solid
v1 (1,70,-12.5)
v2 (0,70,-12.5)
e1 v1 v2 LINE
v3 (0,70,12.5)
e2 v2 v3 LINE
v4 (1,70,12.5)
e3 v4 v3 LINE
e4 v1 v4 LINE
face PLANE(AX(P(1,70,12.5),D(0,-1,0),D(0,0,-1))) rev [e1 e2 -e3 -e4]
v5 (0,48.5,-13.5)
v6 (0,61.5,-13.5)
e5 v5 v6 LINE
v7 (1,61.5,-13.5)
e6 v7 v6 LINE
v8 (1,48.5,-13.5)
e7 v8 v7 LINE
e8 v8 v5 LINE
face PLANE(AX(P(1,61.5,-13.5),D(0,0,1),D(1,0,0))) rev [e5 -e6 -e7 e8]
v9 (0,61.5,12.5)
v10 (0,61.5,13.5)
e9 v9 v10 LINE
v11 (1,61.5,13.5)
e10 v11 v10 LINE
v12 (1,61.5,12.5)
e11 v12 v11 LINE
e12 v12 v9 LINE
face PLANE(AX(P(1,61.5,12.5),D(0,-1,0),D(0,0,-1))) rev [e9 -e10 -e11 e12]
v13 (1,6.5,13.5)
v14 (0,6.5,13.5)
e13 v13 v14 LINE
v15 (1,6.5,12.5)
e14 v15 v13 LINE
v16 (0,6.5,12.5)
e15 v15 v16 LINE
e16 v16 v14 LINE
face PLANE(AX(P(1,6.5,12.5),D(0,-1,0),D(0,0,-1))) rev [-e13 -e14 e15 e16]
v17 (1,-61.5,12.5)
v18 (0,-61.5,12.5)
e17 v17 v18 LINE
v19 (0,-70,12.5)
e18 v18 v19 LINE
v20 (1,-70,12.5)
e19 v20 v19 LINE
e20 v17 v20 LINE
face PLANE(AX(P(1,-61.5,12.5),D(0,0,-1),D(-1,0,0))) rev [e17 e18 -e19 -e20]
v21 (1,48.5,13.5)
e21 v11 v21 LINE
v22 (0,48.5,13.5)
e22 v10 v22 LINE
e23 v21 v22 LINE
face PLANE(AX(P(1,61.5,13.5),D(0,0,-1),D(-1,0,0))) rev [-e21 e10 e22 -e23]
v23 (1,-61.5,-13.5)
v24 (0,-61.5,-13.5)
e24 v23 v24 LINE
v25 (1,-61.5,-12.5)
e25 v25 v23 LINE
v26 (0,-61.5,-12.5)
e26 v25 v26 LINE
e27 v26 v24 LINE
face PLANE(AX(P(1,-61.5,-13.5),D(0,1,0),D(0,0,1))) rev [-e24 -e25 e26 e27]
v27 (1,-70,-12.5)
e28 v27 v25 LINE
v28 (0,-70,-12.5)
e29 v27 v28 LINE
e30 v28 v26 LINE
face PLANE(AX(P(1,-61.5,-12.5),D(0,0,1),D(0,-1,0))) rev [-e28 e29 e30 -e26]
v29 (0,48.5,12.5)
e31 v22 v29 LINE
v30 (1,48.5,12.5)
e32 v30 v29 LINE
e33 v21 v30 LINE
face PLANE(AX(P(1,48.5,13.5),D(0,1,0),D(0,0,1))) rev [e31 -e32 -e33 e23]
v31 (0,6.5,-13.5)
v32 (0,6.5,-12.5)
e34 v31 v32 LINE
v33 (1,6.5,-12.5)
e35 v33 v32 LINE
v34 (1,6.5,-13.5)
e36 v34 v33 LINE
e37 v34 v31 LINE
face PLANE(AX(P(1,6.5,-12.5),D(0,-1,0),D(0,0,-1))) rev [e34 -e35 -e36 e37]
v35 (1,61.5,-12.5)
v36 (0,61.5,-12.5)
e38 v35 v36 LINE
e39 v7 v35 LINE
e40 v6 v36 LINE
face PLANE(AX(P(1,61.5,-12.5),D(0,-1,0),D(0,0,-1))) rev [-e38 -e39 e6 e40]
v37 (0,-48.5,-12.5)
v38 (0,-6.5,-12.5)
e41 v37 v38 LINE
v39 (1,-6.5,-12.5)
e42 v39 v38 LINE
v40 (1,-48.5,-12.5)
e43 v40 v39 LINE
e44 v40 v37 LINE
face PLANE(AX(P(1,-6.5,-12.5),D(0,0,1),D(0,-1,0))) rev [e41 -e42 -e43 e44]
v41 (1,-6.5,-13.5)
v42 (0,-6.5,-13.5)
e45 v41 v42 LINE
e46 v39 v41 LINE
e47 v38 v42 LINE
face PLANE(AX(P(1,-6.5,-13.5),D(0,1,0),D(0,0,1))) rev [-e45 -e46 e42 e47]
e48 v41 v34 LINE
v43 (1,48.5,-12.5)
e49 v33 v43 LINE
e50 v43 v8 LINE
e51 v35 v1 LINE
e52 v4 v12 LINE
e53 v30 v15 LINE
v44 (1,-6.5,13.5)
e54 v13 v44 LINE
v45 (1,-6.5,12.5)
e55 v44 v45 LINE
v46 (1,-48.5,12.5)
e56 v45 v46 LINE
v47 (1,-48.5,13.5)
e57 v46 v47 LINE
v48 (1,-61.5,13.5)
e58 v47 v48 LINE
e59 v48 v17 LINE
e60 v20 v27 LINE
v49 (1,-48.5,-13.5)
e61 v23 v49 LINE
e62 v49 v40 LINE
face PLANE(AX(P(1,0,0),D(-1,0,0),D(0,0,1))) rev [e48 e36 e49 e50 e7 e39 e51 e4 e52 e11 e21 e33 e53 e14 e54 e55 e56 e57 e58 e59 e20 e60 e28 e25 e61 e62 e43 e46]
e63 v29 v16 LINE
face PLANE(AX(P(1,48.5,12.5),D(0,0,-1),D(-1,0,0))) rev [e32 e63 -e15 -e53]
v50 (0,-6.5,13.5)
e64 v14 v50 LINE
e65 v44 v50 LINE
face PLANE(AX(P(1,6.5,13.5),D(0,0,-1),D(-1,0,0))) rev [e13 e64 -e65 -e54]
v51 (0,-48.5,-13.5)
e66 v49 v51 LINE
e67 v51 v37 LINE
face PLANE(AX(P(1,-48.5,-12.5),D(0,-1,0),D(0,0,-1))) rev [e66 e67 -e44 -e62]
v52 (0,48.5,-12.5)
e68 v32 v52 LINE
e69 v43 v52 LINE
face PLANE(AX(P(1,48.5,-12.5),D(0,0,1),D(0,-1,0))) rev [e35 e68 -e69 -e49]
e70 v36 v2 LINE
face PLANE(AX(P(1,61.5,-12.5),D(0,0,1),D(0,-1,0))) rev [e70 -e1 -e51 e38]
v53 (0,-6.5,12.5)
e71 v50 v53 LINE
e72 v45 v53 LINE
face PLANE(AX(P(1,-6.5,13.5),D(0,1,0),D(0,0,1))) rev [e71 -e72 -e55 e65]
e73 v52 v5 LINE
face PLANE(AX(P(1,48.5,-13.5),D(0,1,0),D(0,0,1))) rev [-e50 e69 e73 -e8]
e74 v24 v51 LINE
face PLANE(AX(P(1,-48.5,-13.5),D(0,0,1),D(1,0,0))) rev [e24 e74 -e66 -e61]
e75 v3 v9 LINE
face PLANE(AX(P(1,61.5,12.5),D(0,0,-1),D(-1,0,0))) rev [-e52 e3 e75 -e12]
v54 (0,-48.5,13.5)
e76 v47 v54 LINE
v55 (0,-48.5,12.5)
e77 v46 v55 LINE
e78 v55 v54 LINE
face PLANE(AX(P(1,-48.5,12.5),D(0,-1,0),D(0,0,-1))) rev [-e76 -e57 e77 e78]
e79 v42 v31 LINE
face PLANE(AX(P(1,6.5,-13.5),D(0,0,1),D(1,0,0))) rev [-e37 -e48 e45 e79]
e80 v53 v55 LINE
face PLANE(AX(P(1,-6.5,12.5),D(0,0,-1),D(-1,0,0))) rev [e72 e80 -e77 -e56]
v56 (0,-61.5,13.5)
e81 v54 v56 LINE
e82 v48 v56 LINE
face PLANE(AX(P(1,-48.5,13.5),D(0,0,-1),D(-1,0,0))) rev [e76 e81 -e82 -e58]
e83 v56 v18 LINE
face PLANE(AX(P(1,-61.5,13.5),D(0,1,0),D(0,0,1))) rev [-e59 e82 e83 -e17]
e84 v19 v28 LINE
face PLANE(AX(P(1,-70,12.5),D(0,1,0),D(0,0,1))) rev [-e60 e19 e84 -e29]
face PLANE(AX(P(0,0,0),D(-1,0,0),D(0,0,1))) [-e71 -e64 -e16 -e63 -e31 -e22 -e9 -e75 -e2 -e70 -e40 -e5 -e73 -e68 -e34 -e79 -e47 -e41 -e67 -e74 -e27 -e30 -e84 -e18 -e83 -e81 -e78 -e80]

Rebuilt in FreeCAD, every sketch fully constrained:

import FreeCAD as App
import Part
import Sketcher

V = App.Vector

doc = App.newDocument("Part")
body = doc.addObject("PartDesign::Body", "Body")

sketch1 = body.newObject("Sketcher::SketchObject", "Sketch")
sketch1.AttachmentSupport = (doc.getObject("YZ_Plane"), [""])
sketch1.MapMode = "FlatFace"
sketch1.addGeometry(Part.LineSegment(V(61.5, 12.5, 0), V(61.5, 13.5, 0)), False)
sketch1.addGeometry(Part.LineSegment(V(61.5, 13.5, 0), V(48.5, 13.5, 0)), False)
sketch1.addGeometry(Part.LineSegment(V(48.5, 13.5, 0), V(48.5, 12.5, 0)), False)
sketch1.addGeometry(Part.LineSegment(V(48.5, 12.5, 0), V(6.5, 12.5, 0)), False)
sketch1.addGeometry(Part.LineSegment(V(6.5, 12.5, 0), V(6.5, 13.5, 0)), False)
sketch1.addGeometry(Part.LineSegment(V(6.5, 13.5, 0), V(-6.5, 13.5, 0)), False)
sketch1.addGeometry(Part.LineSegment(V(-6.5, 13.5, 0), V(-6.5, 12.5, 0)), False)
sketch1.addGeometry(Part.LineSegment(V(-6.5, 12.5, 0), V(-48.5, 12.5, 0)), False)
sketch1.addGeometry(Part.LineSegment(V(-48.5, 12.5, 0), V(-48.5, 13.5, 0)), False)
sketch1.addGeometry(Part.LineSegment(V(-48.5, 13.5, 0), V(-61.5, 13.5, 0)), False)
sketch1.addGeometry(Part.LineSegment(V(-61.5, 13.5, 0), V(-61.5, 12.5, 0)), False)
sketch1.addGeometry(Part.LineSegment(V(-61.5, 12.5, 0), V(-70, 12.5, 0)), False)
sketch1.addGeometry(Part.LineSegment(V(-70, 12.5, 0), V(-70, -12.5, 0)), False)
sketch1.addGeometry(Part.LineSegment(V(-70, -12.5, 0), V(-61.5, -12.5, 0)), False)
sketch1.addGeometry(Part.LineSegment(V(-61.5, -12.5, 0), V(-61.5, -13.5, 0)), False)
sketch1.addGeometry(Part.LineSegment(V(-61.5, -13.5, 0), V(-48.5, -13.5, 0)), False)
sketch1.addGeometry(Part.LineSegment(V(-48.5, -13.5, 0), V(-48.5, -12.5, 0)), False)
sketch1.addGeometry(Part.LineSegment(V(-48.5, -12.5, 0), V(-6.5, -12.5, 0)), False)
sketch1.addGeometry(Part.LineSegment(V(-6.5, -12.5, 0), V(-6.5, -13.5, 0)), False)
sketch1.addGeometry(Part.LineSegment(V(-6.5, -13.5, 0), V(6.5, -13.5, 0)), False)
sketch1.addGeometry(Part.LineSegment(V(6.5, -13.5, 0), V(6.5, -12.5, 0)), False)
sketch1.addGeometry(Part.LineSegment(V(6.5, -12.5, 0), V(48.5, -12.5, 0)), False)
sketch1.addGeometry(Part.LineSegment(V(48.5, -12.5, 0), V(48.5, -13.5, 0)), False)
sketch1.addGeometry(Part.LineSegment(V(48.5, -13.5, 0), V(61.5, -13.5, 0)), False)
sketch1.addGeometry(Part.LineSegment(V(61.5, -13.5, 0), V(61.5, -12.5, 0)), False)
sketch1.addGeometry(Part.LineSegment(V(61.5, -12.5, 0), V(70, -12.5, 0)), False)
sketch1.addGeometry(Part.LineSegment(V(70, -12.5, 0), V(70, 12.5, 0)), False)
sketch1.addGeometry(Part.LineSegment(V(70, 12.5, 0), V(61.5, 12.5, 0)), False)
sketch1.addConstraint(Sketcher.Constraint("Coincident", 0, 2, 1, 1))
sketch1.addConstraint(Sketcher.Constraint("Coincident", 1, 2, 2, 1))
sketch1.addConstraint(Sketcher.Constraint("Coincident", 2, 2, 3, 1))
sketch1.addConstraint(Sketcher.Constraint("Coincident", 3, 2, 4, 1))
sketch1.addConstraint(Sketcher.Constraint("Coincident", 4, 2, 5, 1))
sketch1.addConstraint(Sketcher.Constraint("Coincident", 5, 2, 6, 1))
sketch1.addConstraint(Sketcher.Constraint("Coincident", 6, 2, 7, 1))
sketch1.addConstraint(Sketcher.Constraint("Coincident", 7, 2, 8, 1))
sketch1.addConstraint(Sketcher.Constraint("Coincident", 8, 2, 9, 1))
sketch1.addConstraint(Sketcher.Constraint("Coincident", 9, 2, 10, 1))
sketch1.addConstraint(Sketcher.Constraint("Coincident", 10, 2, 11, 1))
sketch1.addConstraint(Sketcher.Constraint("Coincident", 11, 2, 12, 1))
sketch1.addConstraint(Sketcher.Constraint("Coincident", 12, 2, 13, 1))
sketch1.addConstraint(Sketcher.Constraint("Coincident", 13, 2, 14, 1))
sketch1.addConstraint(Sketcher.Constraint("Coincident", 14, 2, 15, 1))
sketch1.addConstraint(Sketcher.Constraint("Coincident", 15, 2, 16, 1))
sketch1.addConstraint(Sketcher.Constraint("Coincident", 16, 2, 17, 1))
sketch1.addConstraint(Sketcher.Constraint("Coincident", 17, 2, 18, 1))
sketch1.addConstraint(Sketcher.Constraint("Coincident", 18, 2, 19, 1))
sketch1.addConstraint(Sketcher.Constraint("Coincident", 19, 2, 20, 1))
sketch1.addConstraint(Sketcher.Constraint("Coincident", 20, 2, 21, 1))
sketch1.addConstraint(Sketcher.Constraint("Coincident", 21, 2, 22, 1))
sketch1.addConstraint(Sketcher.Constraint("Coincident", 22, 2, 23, 1))
sketch1.addConstraint(Sketcher.Constraint("Coincident", 23, 2, 24, 1))
sketch1.addConstraint(Sketcher.Constraint("Coincident", 24, 2, 25, 1))
sketch1.addConstraint(Sketcher.Constraint("Coincident", 25, 2, 26, 1))
sketch1.addConstraint(Sketcher.Constraint("Coincident", 26, 2, 27, 1))
sketch1.addConstraint(Sketcher.Constraint("Coincident", 27, 2, 0, 1))
sketch1.addConstraint(Sketcher.Constraint("Vertical", 0))
sketch1.addConstraint(Sketcher.Constraint("Horizontal", 1))
sketch1.addConstraint(Sketcher.Constraint("Vertical", 2))
sketch1.addConstraint(Sketcher.Constraint("Horizontal", 3))
sketch1.addConstraint(Sketcher.Constraint("Vertical", 4))
sketch1.addConstraint(Sketcher.Constraint("Horizontal", 5))
sketch1.addConstraint(Sketcher.Constraint("Vertical", 6))
sketch1.addConstraint(Sketcher.Constraint("Horizontal", 7))
sketch1.addConstraint(Sketcher.Constraint("Vertical", 8))
sketch1.addConstraint(Sketcher.Constraint("Horizontal", 9))
sketch1.addConstraint(Sketcher.Constraint("Vertical", 10))
sketch1.addConstraint(Sketcher.Constraint("Horizontal", 11))
sketch1.addConstraint(Sketcher.Constraint("Vertical", 12))
sketch1.addConstraint(Sketcher.Constraint("Horizontal", 13))
sketch1.addConstraint(Sketcher.Constraint("Vertical", 14))
sketch1.addConstraint(Sketcher.Constraint("Horizontal", 15))
sketch1.addConstraint(Sketcher.Constraint("Vertical", 16))
sketch1.addConstraint(Sketcher.Constraint("Horizontal", 17))
sketch1.addConstraint(Sketcher.Constraint("Vertical", 18))
sketch1.addConstraint(Sketcher.Constraint("Horizontal", 19))
sketch1.addConstraint(Sketcher.Constraint("Vertical", 20))
sketch1.addConstraint(Sketcher.Constraint("Horizontal", 21))
sketch1.addConstraint(Sketcher.Constraint("Vertical", 22))
sketch1.addConstraint(Sketcher.Constraint("Horizontal", 23))
sketch1.addConstraint(Sketcher.Constraint("Vertical", 24))
sketch1.addConstraint(Sketcher.Constraint("Horizontal", 25))
sketch1.addConstraint(Sketcher.Constraint("Vertical", 26))
sketch1.addConstraint(Sketcher.Constraint("Horizontal", 27))
sketch1.addConstraint(Sketcher.Constraint("Symmetric", 0, 2, 14, 2, -1, 1))
sketch1.addConstraint(Sketcher.Constraint("Symmetric", 2, 2, 16, 2, -1, 1))
sketch1.addConstraint(Sketcher.Constraint("Symmetric", 4, 2, 18, 2, -1, 1))
sketch1.addConstraint(Sketcher.Constraint("Symmetric", 6, 2, 20, 2, -1, 1))
sketch1.addConstraint(Sketcher.Constraint("Symmetric", 8, 2, 22, 2, -1, 1))
sketch1.addConstraint(Sketcher.Constraint("Symmetric", 10, 2, 24, 2, -1, 1))
sketch1.addConstraint(Sketcher.Constraint("Symmetric", 12, 2, 26, 2, -1, 1))
sketch1.addConstraint(Sketcher.Constraint("Symmetric", 3, 2, 6, 2, -2))
sketch1.addConstraint(Sketcher.Constraint("Symmetric", 1, 2, 8, 2, -2))
sketch1.addConstraint(Sketcher.Constraint("Symmetric", 13, 2, 24, 2, -2))
sketch1.addConstraint(Sketcher.Constraint("Horizontal", 1, 2, 4, 2))
sketch1.addConstraint(Sketcher.Constraint("Horizontal", 7, 2, 10, 2))
sketch1.addConstraint(Sketcher.Constraint("Equal", 1, 5))
sketch1.addConstraint(Sketcher.Constraint("DistanceX", 1, 2, 1, 1, 13.0))
sketch1.addConstraint(Sketcher.Constraint("DistanceX", 3, 2, 3, 1, 42.0))
sketch1.addConstraint(Sketcher.Constraint("DistanceY", 0, 1, 0, 2, 1.0))
sketch1.addConstraint(Sketcher.Constraint("DistanceY", 12, 2, 12, 1, 25.0))
sketch1.addConstraint(Sketcher.Constraint("DistanceX", 11, 2, 11, 1, 8.5))
pad1 = body.newObject("PartDesign::Pad", "Pad")
pad1.Profile = sketch1
pad1.Length = 1

doc.recompute()
